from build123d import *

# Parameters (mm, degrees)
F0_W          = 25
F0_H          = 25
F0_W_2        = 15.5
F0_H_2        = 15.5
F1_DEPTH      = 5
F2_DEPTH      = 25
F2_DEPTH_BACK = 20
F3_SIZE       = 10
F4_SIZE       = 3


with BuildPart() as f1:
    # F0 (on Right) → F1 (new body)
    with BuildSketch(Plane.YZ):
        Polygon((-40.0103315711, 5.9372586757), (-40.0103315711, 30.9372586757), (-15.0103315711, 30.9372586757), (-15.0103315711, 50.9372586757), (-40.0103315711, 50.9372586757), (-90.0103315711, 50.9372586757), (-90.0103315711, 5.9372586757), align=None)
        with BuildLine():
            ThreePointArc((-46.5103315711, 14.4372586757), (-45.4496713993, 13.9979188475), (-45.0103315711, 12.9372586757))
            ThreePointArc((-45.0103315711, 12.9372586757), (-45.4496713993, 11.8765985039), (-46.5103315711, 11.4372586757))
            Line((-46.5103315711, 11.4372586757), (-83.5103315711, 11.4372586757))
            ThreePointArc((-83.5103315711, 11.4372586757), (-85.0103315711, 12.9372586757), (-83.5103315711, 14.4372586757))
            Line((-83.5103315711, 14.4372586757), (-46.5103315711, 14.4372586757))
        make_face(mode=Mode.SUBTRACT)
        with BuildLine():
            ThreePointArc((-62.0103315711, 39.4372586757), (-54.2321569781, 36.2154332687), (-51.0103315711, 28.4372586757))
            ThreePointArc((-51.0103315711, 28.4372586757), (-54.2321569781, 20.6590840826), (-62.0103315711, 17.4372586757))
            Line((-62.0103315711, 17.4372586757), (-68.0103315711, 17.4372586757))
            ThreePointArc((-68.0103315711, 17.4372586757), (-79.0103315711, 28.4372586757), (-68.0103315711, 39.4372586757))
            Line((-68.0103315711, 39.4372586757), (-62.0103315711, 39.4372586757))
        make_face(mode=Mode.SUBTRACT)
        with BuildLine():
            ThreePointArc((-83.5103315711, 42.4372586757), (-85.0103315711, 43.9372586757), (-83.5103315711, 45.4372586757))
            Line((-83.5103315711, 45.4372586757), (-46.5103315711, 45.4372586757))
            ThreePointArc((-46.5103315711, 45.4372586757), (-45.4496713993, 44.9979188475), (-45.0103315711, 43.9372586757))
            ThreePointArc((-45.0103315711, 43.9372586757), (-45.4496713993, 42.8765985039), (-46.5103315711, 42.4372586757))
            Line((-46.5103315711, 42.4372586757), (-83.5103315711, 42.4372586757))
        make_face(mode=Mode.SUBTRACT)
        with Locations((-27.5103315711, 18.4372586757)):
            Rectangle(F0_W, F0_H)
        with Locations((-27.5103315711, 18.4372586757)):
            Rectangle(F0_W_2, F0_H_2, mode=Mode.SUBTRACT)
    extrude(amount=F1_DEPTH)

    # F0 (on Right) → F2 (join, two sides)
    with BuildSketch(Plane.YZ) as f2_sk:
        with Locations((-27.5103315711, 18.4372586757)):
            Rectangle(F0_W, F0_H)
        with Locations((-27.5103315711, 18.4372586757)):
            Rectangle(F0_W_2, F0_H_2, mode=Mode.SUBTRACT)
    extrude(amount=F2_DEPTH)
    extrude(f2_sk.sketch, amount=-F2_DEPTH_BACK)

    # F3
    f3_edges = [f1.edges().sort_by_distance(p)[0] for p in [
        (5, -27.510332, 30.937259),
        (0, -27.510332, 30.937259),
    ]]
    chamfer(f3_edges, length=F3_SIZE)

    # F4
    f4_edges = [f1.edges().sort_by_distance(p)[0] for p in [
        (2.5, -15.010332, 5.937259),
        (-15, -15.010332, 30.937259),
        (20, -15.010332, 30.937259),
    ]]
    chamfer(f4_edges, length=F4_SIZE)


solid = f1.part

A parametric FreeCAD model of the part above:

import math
import FreeCAD as App
import Part
import Sketcher
from FreeCAD import Vector


def edges_at(feature, points):
    """Names of the edges that pass closest to the given points."""
    edges = feature.Shape.Edges
    near = lambda p: min(range(len(edges)), key=lambda i: edges[i].distToShape(Part.Vertex(*p))[0])
    return sorted({f"Edge{near(p) + 1}" for p in points})


def add_polygon(sketch, points):
    """Adds a closed chain of lines whose ends are joined by coincident constraints."""
    first, n = sketch.GeometryCount, len(points)
    for a, b in zip(points, points[1:] + points[:1]):
        sketch.addGeometry(Part.LineSegment(App.Vector(*a, 0), App.Vector(*b, 0)), False)
    for i in range(n):
        sketch.addConstraint(Sketcher.Constraint("Coincident", first + i, 2, first + (i + 1) % n, 1))

doc = App.newDocument("Part")
body = doc.addObject("PartDesign::Body", "Body")

# Sketch on YZ plane
sketch1 = body.newObject("Sketcher::SketchObject", "Sketch")
sketch1.AttachmentSupport = (doc.getObject("YZ_Plane"), [""])
sketch1.MapMode = "FlatFace"
add_polygon(sketch1, [(-90, 5.9), (-15, 5.9), (-15, 50.9), (-90, 50.9)])  # lines 0-3
sketch1.addGeometry(Part.LineSegment(Vector(-83.5, 14.4, 0), Vector(-46.5, 14.4, 0)), False)  # 4
sketch1.addGeometry(Part.ArcOfCircle(Part.Circle(Vector(-46.5, 12.9, 0), Vector(0, 0, 1), 1.5), math.radians(0), math.radians(90)), False)  # 5
sketch1.addGeometry(Part.ArcOfCircle(Part.Circle(Vector(-46.5, 12.9, 0), Vector(0, 0, 1), 1.5), math.radians(-90), math.radians(0)), False)  # 6
sketch1.addGeometry(Part.LineSegment(Vector(-46.5, 11.4, 0), Vector(-83.5, 11.4, 0)), False)  # 7
sketch1.addGeometry(Part.ArcOfCircle(Part.Circle(Vector(-83.5, 12.9, 0), Vector(0, 0, 1), 1.5), math.radians(90), math.radians(270)), False)  # 8
add_polygon(sketch1, [(-19.8, 10.7), (-35.3, 10.7), (-35.3, 26.2), (-19.8, 26.2)])  # lines 9-12
sketch1.addGeometry(Part.LineSegment(Vector(-68, 39.4, 0), Vector(-62, 39.4, 0)), False)  # 13
sketch1.addGeometry(Part.ArcOfCircle(Part.Circle(Vector(-62, 28.4, 0), Vector(0, 0, 1), 11), math.radians(0), math.radians(90)), False)  # 14
sketch1.addGeometry(Part.ArcOfCircle(Part.Circle(Vector(-62, 28.4, 0), Vector(0, 0, 1), 11), math.radians(-90), math.radians(0)), False)  # 15
sketch1.addGeometry(Part.LineSegment(Vector(-62, 17.4, 0), Vector(-68, 17.4, 0)), False)  # 16
sketch1.addGeometry(Part.ArcOfCircle(Part.Circle(Vector(-68, 28.4, 0), Vector(0, 0, 1), 11), math.radians(90), math.radians(270)), False)  # 17
sketch1.addGeometry(Part.LineSegment(Vector(-46.5, 42.4, 0), Vector(-83.5, 42.4, 0)), False)  # 18
sketch1.addGeometry(Part.ArcOfCircle(Part.Circle(Vector(-83.5, 43.9, 0), Vector(0, 0, 1), 1.5), math.radians(90), math.radians(270)), False)  # 19
sketch1.addGeometry(Part.LineSegment(Vector(-83.5, 45.4, 0), Vector(-46.5, 45.4, 0)), False)  # 20
sketch1.addGeometry(Part.ArcOfCircle(Part.Circle(Vector(-46.5, 43.9, 0), Vector(0, 0, 1), 1.5), math.radians(0), math.radians(90)), False)  # 21
sketch1.addGeometry(Part.ArcOfCircle(Part.Circle(Vector(-46.5, 43.9, 0), Vector(0, 0, 1), 1.5), math.radians(-90), math.radians(0)), False)  # 22
sketch1.addConstraint([
    Sketcher.Constraint("Tangent", 4, 2, 5, 2),
    Sketcher.Constraint("Tangent", 5, 1, 6, 2),
    Sketcher.Constraint("Tangent", 6, 1, 7, 1),
    Sketcher.Constraint("Tangent", 7, 2, 8, 2),
    Sketcher.Constraint("Tangent", 8, 1, 4, 1),
    Sketcher.Constraint("Tangent", 13, 2, 14, 2),
    Sketcher.Constraint("Tangent", 14, 1, 15, 2),
    Sketcher.Constraint("Tangent", 15, 1, 16, 1),
    Sketcher.Constraint("Tangent", 16, 2, 17, 2),
    Sketcher.Constraint("Tangent", 17, 1, 13, 1),
    Sketcher.Constraint("Tangent", 18, 2, 19, 2),
    Sketcher.Constraint("Tangent", 19, 1, 20, 1),
    Sketcher.Constraint("Tangent", 20, 2, 21, 2),
    Sketcher.Constraint("Tangent", 21, 1, 22, 2),
    Sketcher.Constraint("Tangent", 22, 1, 18, 1),
    Sketcher.Constraint("Horizontal", 0),
    Sketcher.Constraint("Vertical", 1),
    Sketcher.Constraint("Horizontal", 2),
    Sketcher.Constraint("Vertical", 3),
    Sketcher.Constraint("Horizontal", 4),
    Sketcher.Constraint("Horizontal", 7),
    Sketcher.Constraint("Horizontal", 9),
    Sketcher.Constraint("Vertical", 10),
    Sketcher.Constraint("Horizontal", 11),
    Sketcher.Constraint("Vertical", 12),
    Sketcher.Constraint("Horizontal", 13),
    Sketcher.Constraint("Horizontal", 16),
    Sketcher.Constraint("Horizontal", 18),
    Sketcher.Constraint("Horizontal", 20),
    Sketcher.Constraint("Equal", 5, 6),
    Sketcher.Constraint("Equal", 14, 15),
    Sketcher.Constraint("Equal", 8, 19),
    Sketcher.Constraint("Equal", 19, 21),
    Sketcher.Constraint("Horizontal", 8, 3, 5, 1),
    Sketcher.Constraint("Horizontal", 17, 3, 14, 1),
    Sketcher.Constraint("Horizontal", 22, 3, 21, 1),
    Sketcher.Constraint("Vertical", 8, 3, 19, 3),
    Sketcher.Constraint("Vertical", 6, 3, 21, 3),
    Sketcher.Constraint("Equal", 11, 10),
    Sketcher.Constraint("Radius", 14, 11.0),
    Sketcher.Constraint("Radius", 5, 1.5),
    Sketcher.Constraint("DistanceX", 0, 1, 0, 2, 75.0),
    Sketcher.Constraint("DistanceX", 4, 1, 4, 2, 37.0),
    Sketcher.Constraint("DistanceX", 13, 1, 13, 2, 6.0),
    Sketcher.Constraint("DistanceY", 1, 1, 1, 2, 45.0),
    Sketcher.Constraint("DistanceX", 9, 2, 9, 1, 15.5),
    Sketcher.Constraint("DistanceY", 8, 3, 19, 3, 31.0),
    Sketcher.Constraint("DistanceY", 0, 2, 5, 3, 7.0),
    Sketcher.Constraint("DistanceX", 14, 3, 0, 2, 47.0),
    Sketcher.Constraint("DistanceY", 4, 2, 14, 3, 14.0),
    Sketcher.Constraint("DistanceX", 14, 3, 5, 1, 17.0),
    Sketcher.Constraint("DistanceX", 5, 1, 9, 2, 9.75),
    Sketcher.Constraint("DistanceY", 9, 2, 5, 1, 2.25),
    Sketcher.Constraint("DistanceX", 5, 3, -1, 1, 46.510332),
    Sketcher.Constraint("DistanceY", -1, 1, 5, 3, 12.937259),
])
pad1 = body.newObject("PartDesign::Pad", "Pad")
pad1.Profile = sketch1
pad1.Length = 5

# Sketch on YZ plane
sketch2 = body.newObject("Sketcher::SketchObject", "Sketch001")
sketch2.AttachmentSupport = (doc.getObject("YZ_Plane"), [""])
sketch2.MapMode = "FlatFace"
add_polygon(sketch2, [(-40, 31), (-40, 6), (-15, 6), (-15, 31)])  # lines 0-3
add_polygon(sketch2, [(-20, 11), (-35, 11), (-35, 26), (-20, 26)])  # lines 4-7
sketch2.addConstraint([
    Sketcher.Constraint("Vertical", 0),
    Sketcher.Constraint("Horizontal", 1),
    Sketcher.Constraint("Vertical", 2),
    Sketcher.Constraint("Horizontal", 3),
    Sketcher.Constraint("Horizontal", 4),
    Sketcher.Constraint("Vertical", 5),
    Sketcher.Constraint("Horizontal", 6),
    Sketcher.Constraint("Vertical", 7),
    Sketcher.Constraint("Equal", 3, 0),
    Sketcher.Constraint("Equal", 6, 5),
    Sketcher.Constraint("DistanceX", 1, 1, 1, 2, 25.0),
    Sketcher.Constraint("DistanceX", 4, 2, 4, 1, 15.5),
    Sketcher.Constraint("DistanceX", 0, 2, 4, 2, 4.75),
    Sketcher.Constraint("DistanceY", 0, 2, 4, 2, 4.75),
    Sketcher.Constraint("DistanceX", 0, 2, -1, 1, 40.010332),
    Sketcher.Constraint("DistanceY", -1, 1, 0, 2, 5.937259),
])
pad2 = body.newObject("PartDesign::Pad", "Pad001")
pad2.Profile = sketch2
pad2.Type = "TwoLengths"
pad2.Length = 25
pad2.Length2 = 20
doc.recompute()

chamfer = body.newObject("PartDesign::Chamfer", "Chamfer")
chamfer.Base = (pad2, edges_at(pad2, [(5, -27.51, 30.937), (0, -27.51, 30.937)]))
chamfer.Size = 10
doc.recompute()

chamfer2 = body.newObject("PartDesign::Chamfer", "Chamfer001")
chamfer2.Base = (chamfer, edges_at(chamfer, [(2.5, -15.01, 5.937), (-15, -15.01, 30.937), (20, -15.01, 30.937)]))
chamfer2.Size = 3

doc.recompute()
